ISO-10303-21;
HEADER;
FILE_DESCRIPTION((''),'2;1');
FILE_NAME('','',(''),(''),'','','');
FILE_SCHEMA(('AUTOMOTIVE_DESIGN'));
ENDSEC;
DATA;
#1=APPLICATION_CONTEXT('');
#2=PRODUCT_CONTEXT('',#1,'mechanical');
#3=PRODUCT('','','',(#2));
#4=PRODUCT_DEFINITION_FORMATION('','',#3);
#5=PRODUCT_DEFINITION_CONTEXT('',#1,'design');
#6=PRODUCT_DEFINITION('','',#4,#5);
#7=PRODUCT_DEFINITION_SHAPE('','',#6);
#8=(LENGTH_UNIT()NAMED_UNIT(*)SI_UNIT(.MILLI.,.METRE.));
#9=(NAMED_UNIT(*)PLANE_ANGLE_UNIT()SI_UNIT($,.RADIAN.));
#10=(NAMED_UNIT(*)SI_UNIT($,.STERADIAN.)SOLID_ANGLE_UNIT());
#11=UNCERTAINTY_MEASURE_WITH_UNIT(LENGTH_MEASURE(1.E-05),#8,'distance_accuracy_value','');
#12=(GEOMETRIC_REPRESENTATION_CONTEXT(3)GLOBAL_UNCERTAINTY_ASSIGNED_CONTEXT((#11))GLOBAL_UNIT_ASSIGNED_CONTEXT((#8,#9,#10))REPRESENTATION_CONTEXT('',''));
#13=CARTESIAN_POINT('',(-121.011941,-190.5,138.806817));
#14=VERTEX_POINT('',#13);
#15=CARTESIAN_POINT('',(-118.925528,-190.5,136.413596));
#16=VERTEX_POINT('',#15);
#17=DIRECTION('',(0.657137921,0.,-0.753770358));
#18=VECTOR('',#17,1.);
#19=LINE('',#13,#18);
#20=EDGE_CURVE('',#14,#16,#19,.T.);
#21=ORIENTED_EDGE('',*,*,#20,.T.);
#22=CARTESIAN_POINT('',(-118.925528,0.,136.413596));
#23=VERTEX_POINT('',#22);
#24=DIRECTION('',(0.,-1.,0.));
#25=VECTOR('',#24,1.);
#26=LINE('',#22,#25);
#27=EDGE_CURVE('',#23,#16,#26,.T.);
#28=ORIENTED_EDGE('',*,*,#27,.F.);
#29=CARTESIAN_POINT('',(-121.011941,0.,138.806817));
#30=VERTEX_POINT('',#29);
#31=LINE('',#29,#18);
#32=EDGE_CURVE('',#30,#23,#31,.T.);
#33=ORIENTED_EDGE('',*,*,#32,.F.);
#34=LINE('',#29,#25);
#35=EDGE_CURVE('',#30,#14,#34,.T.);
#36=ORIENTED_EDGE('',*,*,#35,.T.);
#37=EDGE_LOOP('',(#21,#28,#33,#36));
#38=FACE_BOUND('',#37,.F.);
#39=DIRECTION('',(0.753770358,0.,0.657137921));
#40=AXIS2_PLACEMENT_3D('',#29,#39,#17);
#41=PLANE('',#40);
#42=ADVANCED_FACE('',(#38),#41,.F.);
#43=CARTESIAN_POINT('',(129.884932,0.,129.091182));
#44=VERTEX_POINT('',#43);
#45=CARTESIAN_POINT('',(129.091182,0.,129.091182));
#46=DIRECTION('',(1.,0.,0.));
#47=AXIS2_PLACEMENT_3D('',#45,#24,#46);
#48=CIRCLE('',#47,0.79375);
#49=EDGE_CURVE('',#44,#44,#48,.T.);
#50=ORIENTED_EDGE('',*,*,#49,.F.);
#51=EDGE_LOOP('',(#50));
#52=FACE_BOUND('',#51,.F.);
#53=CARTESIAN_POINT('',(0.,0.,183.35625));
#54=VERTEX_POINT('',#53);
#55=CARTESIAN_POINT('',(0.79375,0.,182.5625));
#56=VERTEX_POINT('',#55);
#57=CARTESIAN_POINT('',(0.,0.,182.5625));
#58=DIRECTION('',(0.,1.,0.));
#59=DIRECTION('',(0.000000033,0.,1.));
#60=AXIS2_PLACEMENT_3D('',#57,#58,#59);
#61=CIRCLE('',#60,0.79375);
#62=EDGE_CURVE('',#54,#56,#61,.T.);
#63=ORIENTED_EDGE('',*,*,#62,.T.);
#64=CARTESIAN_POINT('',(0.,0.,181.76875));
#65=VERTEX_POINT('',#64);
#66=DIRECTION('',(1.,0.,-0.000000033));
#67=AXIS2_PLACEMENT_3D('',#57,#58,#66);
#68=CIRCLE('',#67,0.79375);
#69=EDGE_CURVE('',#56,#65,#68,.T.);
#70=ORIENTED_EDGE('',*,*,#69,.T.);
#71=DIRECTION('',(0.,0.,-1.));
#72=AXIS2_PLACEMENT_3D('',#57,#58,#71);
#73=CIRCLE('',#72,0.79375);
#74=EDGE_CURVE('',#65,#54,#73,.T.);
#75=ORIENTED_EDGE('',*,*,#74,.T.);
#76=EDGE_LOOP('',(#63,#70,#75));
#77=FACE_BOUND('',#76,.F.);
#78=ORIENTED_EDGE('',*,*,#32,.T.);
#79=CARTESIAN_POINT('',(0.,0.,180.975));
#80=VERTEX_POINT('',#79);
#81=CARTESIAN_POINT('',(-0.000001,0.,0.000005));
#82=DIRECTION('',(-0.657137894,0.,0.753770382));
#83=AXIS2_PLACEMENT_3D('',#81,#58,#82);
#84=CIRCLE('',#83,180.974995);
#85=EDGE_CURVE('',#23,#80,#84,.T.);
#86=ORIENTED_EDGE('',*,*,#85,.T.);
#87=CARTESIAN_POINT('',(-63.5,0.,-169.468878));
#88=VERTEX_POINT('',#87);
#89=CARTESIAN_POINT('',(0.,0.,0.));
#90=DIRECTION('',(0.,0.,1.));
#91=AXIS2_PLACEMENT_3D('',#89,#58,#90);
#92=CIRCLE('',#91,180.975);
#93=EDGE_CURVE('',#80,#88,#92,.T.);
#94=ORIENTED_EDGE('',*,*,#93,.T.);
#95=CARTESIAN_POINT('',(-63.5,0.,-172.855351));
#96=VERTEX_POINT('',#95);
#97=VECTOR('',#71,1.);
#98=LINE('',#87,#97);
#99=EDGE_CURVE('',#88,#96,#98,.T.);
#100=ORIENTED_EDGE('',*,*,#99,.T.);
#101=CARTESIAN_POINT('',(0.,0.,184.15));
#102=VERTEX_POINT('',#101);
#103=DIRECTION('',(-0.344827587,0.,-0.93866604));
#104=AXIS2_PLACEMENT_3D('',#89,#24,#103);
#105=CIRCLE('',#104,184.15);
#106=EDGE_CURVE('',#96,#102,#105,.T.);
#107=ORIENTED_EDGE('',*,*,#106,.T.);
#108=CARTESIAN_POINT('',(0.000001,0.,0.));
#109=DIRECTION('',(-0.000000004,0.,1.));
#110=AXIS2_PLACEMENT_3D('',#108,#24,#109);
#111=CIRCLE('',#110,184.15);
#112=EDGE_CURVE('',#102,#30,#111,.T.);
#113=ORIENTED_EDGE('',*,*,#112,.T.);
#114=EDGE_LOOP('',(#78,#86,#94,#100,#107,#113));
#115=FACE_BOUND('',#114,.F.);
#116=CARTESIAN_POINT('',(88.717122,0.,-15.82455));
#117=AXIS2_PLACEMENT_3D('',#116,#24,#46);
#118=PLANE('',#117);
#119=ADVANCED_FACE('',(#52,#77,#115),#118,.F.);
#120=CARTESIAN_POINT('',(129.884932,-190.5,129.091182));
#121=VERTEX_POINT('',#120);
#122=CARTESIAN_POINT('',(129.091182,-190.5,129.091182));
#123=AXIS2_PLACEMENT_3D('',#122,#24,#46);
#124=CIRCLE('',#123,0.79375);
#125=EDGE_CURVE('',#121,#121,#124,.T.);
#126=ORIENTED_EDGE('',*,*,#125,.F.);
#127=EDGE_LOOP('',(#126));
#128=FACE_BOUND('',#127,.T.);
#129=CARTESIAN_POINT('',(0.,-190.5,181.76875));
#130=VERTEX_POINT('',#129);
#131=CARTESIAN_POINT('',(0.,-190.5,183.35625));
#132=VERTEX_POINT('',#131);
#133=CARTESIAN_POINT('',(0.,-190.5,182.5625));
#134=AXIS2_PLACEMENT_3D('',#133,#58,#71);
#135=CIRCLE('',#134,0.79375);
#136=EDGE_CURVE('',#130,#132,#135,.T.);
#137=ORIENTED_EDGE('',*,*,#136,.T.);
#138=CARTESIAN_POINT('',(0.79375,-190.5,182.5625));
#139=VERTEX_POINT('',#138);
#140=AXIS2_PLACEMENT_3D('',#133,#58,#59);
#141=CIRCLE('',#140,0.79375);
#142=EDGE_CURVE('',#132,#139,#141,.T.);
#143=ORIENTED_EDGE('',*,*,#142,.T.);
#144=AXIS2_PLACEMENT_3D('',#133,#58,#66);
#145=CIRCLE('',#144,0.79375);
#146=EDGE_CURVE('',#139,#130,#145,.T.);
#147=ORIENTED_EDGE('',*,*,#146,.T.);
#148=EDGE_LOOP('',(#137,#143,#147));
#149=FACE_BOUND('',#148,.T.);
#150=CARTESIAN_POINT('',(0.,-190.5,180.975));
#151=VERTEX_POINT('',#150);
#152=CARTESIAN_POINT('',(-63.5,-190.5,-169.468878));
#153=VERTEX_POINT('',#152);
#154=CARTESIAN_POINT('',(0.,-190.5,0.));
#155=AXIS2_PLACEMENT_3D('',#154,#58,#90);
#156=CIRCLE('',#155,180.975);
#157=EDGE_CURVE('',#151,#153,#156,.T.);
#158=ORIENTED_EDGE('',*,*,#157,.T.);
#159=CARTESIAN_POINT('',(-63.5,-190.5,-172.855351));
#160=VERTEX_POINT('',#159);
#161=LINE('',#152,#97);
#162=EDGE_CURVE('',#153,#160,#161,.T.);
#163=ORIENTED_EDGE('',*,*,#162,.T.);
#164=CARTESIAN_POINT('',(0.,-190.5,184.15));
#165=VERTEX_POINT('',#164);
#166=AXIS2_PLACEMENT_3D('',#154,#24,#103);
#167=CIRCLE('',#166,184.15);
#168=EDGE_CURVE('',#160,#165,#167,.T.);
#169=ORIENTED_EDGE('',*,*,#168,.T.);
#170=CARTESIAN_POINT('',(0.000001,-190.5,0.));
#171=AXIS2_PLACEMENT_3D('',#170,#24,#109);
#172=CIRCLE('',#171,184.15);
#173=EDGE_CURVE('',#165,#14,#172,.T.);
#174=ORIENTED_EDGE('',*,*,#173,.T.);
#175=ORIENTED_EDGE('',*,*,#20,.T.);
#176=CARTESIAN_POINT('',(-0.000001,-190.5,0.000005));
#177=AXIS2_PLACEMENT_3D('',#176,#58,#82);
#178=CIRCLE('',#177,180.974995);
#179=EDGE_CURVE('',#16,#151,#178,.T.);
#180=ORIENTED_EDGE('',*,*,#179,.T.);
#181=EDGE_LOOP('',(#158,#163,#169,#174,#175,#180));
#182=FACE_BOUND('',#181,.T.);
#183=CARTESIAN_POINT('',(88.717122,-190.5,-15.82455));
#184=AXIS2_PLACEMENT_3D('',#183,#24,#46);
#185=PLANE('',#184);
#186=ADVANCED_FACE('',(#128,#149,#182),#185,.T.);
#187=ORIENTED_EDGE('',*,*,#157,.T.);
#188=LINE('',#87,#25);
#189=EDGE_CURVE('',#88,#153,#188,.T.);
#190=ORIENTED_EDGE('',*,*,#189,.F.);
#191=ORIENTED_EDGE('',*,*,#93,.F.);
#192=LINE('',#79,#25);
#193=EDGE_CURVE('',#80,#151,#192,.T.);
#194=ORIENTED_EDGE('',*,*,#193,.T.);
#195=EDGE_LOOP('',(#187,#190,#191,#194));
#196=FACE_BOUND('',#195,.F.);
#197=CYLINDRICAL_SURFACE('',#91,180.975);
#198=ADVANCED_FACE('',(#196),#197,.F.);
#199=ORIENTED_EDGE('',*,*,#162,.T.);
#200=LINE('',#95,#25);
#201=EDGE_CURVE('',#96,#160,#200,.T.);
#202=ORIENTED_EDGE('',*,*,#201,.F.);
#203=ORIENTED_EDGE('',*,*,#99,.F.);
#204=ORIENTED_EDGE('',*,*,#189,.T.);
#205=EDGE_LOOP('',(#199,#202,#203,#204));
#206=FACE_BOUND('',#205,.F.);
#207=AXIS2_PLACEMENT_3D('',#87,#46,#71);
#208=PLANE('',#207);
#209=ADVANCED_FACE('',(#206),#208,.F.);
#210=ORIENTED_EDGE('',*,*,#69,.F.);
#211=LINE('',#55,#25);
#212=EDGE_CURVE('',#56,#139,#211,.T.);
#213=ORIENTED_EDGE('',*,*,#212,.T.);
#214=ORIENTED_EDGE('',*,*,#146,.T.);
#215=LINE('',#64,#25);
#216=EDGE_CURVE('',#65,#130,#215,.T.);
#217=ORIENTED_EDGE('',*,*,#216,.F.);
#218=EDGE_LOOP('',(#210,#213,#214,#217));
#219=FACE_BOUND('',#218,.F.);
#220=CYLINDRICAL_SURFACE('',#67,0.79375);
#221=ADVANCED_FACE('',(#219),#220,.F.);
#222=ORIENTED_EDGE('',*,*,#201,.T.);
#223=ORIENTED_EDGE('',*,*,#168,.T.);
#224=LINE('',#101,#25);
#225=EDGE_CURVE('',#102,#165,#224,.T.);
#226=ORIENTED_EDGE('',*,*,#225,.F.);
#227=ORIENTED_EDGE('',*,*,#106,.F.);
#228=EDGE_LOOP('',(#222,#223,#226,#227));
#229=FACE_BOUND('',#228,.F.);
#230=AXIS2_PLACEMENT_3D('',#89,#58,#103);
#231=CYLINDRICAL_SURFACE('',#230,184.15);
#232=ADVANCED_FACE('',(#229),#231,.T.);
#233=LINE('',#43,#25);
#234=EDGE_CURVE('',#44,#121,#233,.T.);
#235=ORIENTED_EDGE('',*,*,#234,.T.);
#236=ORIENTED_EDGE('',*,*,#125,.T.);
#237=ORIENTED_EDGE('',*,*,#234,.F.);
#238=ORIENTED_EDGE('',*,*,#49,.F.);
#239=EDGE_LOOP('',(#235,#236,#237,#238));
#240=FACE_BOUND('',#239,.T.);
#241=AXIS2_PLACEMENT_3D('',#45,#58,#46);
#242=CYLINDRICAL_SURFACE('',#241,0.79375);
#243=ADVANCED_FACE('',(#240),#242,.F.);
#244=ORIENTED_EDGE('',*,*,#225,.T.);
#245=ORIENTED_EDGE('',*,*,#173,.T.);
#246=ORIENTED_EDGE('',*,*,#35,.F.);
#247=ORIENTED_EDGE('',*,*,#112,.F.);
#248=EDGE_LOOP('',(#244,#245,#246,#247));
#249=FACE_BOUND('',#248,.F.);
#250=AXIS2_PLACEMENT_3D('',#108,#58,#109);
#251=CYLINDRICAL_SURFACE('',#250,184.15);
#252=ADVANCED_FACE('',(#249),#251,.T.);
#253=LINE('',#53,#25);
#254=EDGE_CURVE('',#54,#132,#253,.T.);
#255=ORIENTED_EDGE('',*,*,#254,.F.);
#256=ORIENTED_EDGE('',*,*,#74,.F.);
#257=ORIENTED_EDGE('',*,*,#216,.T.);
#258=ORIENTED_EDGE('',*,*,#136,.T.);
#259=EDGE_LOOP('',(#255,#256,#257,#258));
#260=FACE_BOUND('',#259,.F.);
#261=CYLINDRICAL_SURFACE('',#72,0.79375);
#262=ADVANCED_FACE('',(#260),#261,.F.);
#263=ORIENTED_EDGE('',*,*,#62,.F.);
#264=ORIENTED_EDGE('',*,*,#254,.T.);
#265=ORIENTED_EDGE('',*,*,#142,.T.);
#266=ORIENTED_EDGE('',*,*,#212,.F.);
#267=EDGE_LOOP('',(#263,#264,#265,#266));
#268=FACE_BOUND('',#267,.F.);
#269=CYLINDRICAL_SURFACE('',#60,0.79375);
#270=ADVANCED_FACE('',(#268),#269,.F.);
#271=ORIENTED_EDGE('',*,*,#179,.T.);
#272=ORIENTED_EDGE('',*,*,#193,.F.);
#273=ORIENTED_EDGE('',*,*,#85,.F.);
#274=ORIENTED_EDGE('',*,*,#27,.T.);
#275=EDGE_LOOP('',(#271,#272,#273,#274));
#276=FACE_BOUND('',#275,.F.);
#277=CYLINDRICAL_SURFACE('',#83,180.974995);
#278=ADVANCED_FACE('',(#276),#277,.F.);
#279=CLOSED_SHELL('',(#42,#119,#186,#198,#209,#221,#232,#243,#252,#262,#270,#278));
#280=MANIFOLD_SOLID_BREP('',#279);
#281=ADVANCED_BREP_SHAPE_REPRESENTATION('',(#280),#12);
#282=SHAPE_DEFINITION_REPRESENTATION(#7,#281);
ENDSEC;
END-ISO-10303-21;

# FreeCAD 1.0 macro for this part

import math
import FreeCAD as App
import Part
import Sketcher

V = App.Vector
Q = App.Units.Quantity

doc = App.newDocument("Part")
body = doc.addObject("PartDesign::Body", "Body")

sketch1 = body.newObject("Sketcher::SketchObject", "Sketch")
sketch1.AttachmentSupport = (doc.getObject("XZ_Plane"), [""])
sketch1.MapMode = "FlatFace"
sketch1.addGeometry(Part.ArcOfCircle(Part.Circle(V(0, 0, 0), V(0, 0, 1), 181), math.radians(-111), math.radians(90)), False)
sketch1.addGeometry(Part.LineSegment(V(-63.5, -169.5, 0), V(-63.5, -172.9, 0)), False)
sketch1.addGeometry(Part.ArcOfCircle(Part.Circle(V(0, 0, 0), V(0, 0, 1), 184.1), math.radians(-110), math.radians(90)), False)
sketch1.addGeometry(Part.ArcOfCircle(Part.Circle(V(0, 0, 0), V(0, 0, 1), 184.1), math.radians(90), math.radians(131)), False)
sketch1.addGeometry(Part.LineSegment(V(-121, 138.8, 0), V(-118.9, 136.4, 0)), False)
sketch1.addGeometry(Part.ArcOfCircle(Part.Circle(V(0, 0, 0), V(0, 0, 1), 181), math.radians(90), math.radians(131)), False)
sketch1.addGeometry(Part.ArcOfCircle(Part.Circle(V(0, 182.6, 0), V(0, 0, 1), 0.8), math.radians(-90), math.radians(0)), False)
sketch1.addGeometry(Part.ArcOfCircle(Part.Circle(V(0, 182.6, 0), V(0, 0, 1), 0.8), math.radians(90), math.radians(270)), False)
sketch1.addGeometry(Part.ArcOfCircle(Part.Circle(V(0, 182.6, 0), V(0, 0, 1), 0.8), math.radians(0), math.radians(90)), False)
sketch1.addGeometry(Part.Circle(V(129.1, 129.1, 0), V(0, 0, 1), 0.8), False)
sketch1.addConstraint(Sketcher.Constraint("Coincident", 0, 1, 1, 1))
sketch1.addConstraint(Sketcher.Constraint("Coincident", 1, 2, 2, 1))
sketch1.addConstraint(Sketcher.Constraint("Tangent", 2, 2, 3, 1))
sketch1.addConstraint(Sketcher.Constraint("Coincident", 3, 2, 4, 1))
sketch1.addConstraint(Sketcher.Constraint("Coincident", 4, 2, 5, 2))
sketch1.addConstraint(Sketcher.Constraint("Tangent", 5, 1, 0, 2))
sketch1.addConstraint(Sketcher.Constraint("Tangent", 6, 1, 7, 2))
sketch1.addConstraint(Sketcher.Constraint("Tangent", 7, 1, 8, 2))
sketch1.addConstraint(Sketcher.Constraint("Tangent", 8, 1, 6, 2))
sketch1.addConstraint(Sketcher.Constraint("Vertical", 1))
sketch1.addConstraint(Sketcher.Constraint("Coincident", 0, 3, -1, 1))
sketch1.addConstraint(Sketcher.Constraint("Coincident", 2, 3, -1, 1))
sketch1.addConstraint(Sketcher.Constraint("Equal", 2, 3))
sketch1.addConstraint(Sketcher.Constraint("Equal", 8, 9))
sketch1.addConstraint(Sketcher.Constraint("PointOnObject", 6, 3, -2))
sketch1.addConstraint(Sketcher.Constraint("PointOnObject", 2, 2, -2))
sketch1.addConstraint(Sketcher.Constraint("PointOnObject", 5, 1, -2))
sketch1.addConstraint(Sketcher.Constraint("PointOnObject", 6, 1, -2))
sketch1.addConstraint(Sketcher.Constraint("PointOnObject", 7, 1, -2))
sketch1.addConstraint(Sketcher.Constraint("Horizontal", 7, 3, 8, 1))
sketch1.addConstraint(Sketcher.Constraint("Radius", 2, Q("7.25 in")))
sketch1.addConstraint(Sketcher.Constraint("Diameter", 9, Q("0.0625 in")))
sketch1.addConstraint(Sketcher.Constraint("Radius", 0, Q("7.125 in")))
sketch1.addConstraint(Sketcher.Constraint("Radius", 5, Q("7.1249998 in")))
sketch1.addConstraint(Sketcher.Constraint("DistanceX", 0, 1, -1, 1, Q("2.5 in")))
sketch1.addConstraint(Sketcher.Constraint("DistanceY", -1, 1, 6, 3, Q("7.1875 in")))
sketch1.addConstraint(Sketcher.Constraint("DistanceX", -1, 1, 9, 3, Q("129.091182 mm")))
sketch1.addConstraint(Sketcher.Constraint("DistanceY", -1, 1, 9, 3, Q("129.091182 mm")))
sketch1.addConstraint(Sketcher.Constraint("DistanceX", 3, 2, -1, 1, Q("121.011941 mm")))
sketch1.addConstraint(Sketcher.Constraint("DistanceX", 4, 2, -1, 1, Q("118.925528 mm")))
pad1 = body.newObject("PartDesign::Pad", "Pad")
pad1.Profile = sketch1
pad1.Length = Q("7.5 in")

doc.recompute()
